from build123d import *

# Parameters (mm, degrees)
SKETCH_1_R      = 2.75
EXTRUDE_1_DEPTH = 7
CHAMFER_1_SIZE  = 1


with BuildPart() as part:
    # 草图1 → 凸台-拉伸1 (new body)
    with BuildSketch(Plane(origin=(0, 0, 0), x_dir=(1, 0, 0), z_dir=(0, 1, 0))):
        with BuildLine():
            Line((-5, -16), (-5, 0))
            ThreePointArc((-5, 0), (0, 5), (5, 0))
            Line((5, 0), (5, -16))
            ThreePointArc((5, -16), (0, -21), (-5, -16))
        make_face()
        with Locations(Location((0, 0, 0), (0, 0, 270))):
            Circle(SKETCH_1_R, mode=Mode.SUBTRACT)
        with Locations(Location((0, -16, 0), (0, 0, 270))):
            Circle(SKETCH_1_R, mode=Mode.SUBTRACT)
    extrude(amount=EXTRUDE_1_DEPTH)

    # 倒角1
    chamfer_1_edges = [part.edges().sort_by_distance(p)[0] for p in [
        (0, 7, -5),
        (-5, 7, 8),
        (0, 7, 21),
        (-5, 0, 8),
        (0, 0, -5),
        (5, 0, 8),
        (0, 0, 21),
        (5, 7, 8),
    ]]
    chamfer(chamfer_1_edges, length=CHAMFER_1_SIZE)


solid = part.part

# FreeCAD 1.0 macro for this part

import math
import FreeCAD as App
import Part
import Sketcher
Q = App.Units.Quantity


def edges_at(feature, points):
    """Names of the edges that pass closest to the given points."""
    edges = feature.Shape.Edges
    near = lambda p: min(range(len(edges)), key=lambda i: edges[i].distToShape(Part.Vertex(*p))[0])
    return sorted({f"Edge{near(p) + 1}" for p in points})

doc = App.newDocument("Part")
body = doc.addObject("PartDesign::Body", "Body")

# Sketch on XZ plane
sketch1 = body.newObject("Sketcher::SketchObject", "Sketch")
sketch1.AttachmentSupport = (doc.getObject("XZ_Plane"), [""])
sketch1.MapMode = "FlatFace"
sketch1.addGeometry([
    Part.LineSegment(App.Vector(-5, 0, 0), App.Vector(-5, 16, 0)),  # 0
    Part.ArcOfCircle(Part.Circle(App.Vector(0, 16, 0), App.Vector(0, 0, 1), 5), math.radians(0), math.radians(180)),  # 1
    Part.LineSegment(App.Vector(5, 16, 0), App.Vector(5, 0, 0)),  # 2
    Part.ArcOfCircle(Part.Circle(App.Vector(0, 0, 0), App.Vector(0, 0, 1), 5), math.radians(180), math.radians(360)),  # 3
    Part.Circle(App.Vector(0, 16, 0), App.Vector(0, 0, 1), 2.8),  # 4
    Part.Circle(App.Vector(0, 0, 0), App.Vector(0, 0, 1), 2.8),  # 5
], False)
sketch1.addConstraint([
    Sketcher.Constraint("Tangent", 0, 2, 1, 2),
    Sketcher.Constraint("Tangent", 1, 1, 2, 1),
    Sketcher.Constraint("Tangent", 2, 2, 3, 2),
    Sketcher.Constraint("Tangent", 3, 1, 0, 1),
    Sketcher.Constraint("Vertical", 0),
    Sketcher.Constraint("Vertical", 2),
    Sketcher.Constraint("Coincident", 3, 3, -1, 1),
    Sketcher.Constraint("Coincident", 5, 3, -1, 1),
    Sketcher.Constraint("Coincident", 4, 3, 1, 3),
    Sketcher.Constraint("Equal", 4, 5),
    Sketcher.Constraint("Radius", 1, Q("5 mm")),
    Sketcher.Constraint("Diameter", 4, Q("5.5 mm")),
    Sketcher.Constraint("DistanceY", 0, 1, 0, 2, Q("16 mm")),
])
pad1 = body.newObject("PartDesign::Pad", "Pad")
pad1.Profile = sketch1
pad1.Length = 7
pad1.Reversed = True
doc.recompute()

chamfer = body.newObject("PartDesign::Chamfer", "Chamfer")
chamfer.Base = (pad1, edges_at(pad1, [
    (0, 7, -5),
    (-5, 7, 8),
    (0, 7, 21),
    (-5, 0, 8),
    (0, 0, -5),
    (5, 0, 8),
    (0, 0, 21),
    (5, 7, 8),
]))
chamfer.Size = 1

doc.recompute()
